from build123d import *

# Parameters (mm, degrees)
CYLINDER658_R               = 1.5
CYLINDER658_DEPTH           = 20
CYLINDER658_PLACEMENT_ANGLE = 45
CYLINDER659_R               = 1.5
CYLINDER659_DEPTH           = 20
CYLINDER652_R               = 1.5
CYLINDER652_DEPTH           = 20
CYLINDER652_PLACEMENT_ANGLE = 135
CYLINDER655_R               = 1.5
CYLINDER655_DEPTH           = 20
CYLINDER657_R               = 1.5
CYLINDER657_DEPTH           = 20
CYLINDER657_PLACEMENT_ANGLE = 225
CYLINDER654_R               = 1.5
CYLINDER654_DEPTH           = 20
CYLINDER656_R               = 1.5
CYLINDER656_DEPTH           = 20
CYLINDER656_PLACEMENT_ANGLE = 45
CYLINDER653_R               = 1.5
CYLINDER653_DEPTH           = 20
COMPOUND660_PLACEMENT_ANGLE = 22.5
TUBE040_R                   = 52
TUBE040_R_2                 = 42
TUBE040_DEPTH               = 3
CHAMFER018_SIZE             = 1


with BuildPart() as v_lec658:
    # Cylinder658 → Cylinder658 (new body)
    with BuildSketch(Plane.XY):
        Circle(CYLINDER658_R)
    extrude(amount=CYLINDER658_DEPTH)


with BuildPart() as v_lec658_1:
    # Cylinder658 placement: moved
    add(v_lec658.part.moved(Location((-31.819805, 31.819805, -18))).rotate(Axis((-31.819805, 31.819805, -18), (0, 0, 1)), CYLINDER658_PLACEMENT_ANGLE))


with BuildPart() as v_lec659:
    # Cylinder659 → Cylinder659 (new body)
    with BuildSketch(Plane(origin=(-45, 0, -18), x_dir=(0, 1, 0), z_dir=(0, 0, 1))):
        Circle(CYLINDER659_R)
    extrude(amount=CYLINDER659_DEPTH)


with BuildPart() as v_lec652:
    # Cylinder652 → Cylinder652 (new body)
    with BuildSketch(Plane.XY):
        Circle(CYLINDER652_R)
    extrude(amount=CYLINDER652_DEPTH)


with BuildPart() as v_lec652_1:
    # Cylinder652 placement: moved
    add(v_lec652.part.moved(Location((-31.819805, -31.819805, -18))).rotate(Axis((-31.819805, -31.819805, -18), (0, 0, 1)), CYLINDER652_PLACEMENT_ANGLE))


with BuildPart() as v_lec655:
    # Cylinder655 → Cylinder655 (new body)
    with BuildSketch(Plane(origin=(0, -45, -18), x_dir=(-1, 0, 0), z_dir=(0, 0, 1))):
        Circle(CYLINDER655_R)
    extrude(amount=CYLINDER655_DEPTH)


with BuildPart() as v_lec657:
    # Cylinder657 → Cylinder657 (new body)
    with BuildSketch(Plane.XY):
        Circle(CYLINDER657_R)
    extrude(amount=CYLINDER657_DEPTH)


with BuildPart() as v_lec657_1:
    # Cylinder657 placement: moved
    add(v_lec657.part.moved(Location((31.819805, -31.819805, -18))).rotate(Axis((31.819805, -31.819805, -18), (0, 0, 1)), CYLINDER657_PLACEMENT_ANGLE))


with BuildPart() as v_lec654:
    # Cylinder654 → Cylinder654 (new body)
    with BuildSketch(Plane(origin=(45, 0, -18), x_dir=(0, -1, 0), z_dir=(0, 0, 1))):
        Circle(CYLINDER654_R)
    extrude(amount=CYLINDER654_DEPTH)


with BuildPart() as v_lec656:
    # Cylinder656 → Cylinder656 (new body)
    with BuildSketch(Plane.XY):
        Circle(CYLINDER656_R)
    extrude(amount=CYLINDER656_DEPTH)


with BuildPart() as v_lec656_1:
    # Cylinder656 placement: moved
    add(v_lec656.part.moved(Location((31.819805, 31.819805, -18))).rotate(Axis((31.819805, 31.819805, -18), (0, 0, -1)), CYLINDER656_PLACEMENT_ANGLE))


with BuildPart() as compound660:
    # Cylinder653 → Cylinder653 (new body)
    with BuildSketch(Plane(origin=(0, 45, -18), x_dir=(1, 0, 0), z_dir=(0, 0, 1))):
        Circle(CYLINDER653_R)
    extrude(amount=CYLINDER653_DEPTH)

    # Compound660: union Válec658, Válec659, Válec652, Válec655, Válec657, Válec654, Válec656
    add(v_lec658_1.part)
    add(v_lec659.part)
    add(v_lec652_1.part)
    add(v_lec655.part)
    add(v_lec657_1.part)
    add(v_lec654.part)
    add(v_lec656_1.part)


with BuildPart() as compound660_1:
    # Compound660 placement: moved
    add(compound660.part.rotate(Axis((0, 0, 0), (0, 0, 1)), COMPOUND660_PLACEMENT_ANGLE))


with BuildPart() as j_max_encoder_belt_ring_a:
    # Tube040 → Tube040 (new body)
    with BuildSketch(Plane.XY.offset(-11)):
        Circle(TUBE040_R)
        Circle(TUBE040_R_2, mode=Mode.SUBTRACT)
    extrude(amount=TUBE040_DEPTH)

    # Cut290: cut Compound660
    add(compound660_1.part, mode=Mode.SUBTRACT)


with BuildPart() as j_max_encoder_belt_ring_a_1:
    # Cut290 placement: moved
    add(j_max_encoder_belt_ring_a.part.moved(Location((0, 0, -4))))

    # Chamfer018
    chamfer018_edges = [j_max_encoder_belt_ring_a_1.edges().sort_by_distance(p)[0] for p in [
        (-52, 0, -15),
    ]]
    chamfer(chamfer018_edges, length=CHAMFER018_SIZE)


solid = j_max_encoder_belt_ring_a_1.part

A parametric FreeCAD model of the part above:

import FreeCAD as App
import Part
import Sketcher
from FreeCAD import Vector
Q = App.Units.Quantity


def edges_at(feature, points):
    """Names of the edges that pass closest to the given points."""
    edges = feature.Shape.Edges
    near = lambda p: min(range(len(edges)), key=lambda i: edges[i].distToShape(Part.Vertex(*p))[0])
    return sorted({f"Edge{near(p) + 1}" for p in points})

doc = App.newDocument("Part")
body = doc.addObject("PartDesign::Body", "Body")

# Sketch on XY plane
sketch1 = body.newObject("Sketcher::SketchObject", "Sketch")
sketch1.AttachmentSupport = (doc.getObject("XY_Plane"), [""])
sketch1.MapMode = "FlatFace"
sketch1.addGeometry(Part.Circle(Vector(0, 0, 0), Vector(0, 0, 1), 1.5), False)
sketch1.addConstraint([
    Sketcher.Constraint("Coincident", 0, 3, -1, 1),
    Sketcher.Constraint("Diameter", 0, Q("3 mm")),
])
pad1 = body.newObject("PartDesign::Pad", "Pad")
pad1.Profile = sketch1
pad1.Length = 20
body2 = doc.addObject("PartDesign::Body", "Body001")
doc.recompute()

body.Placement = App.Placement(Vector(-31.819805, 31.819805, -18), App.Rotation(Vector(0, 0, 1), 45))
boolean = body2.newObject("PartDesign::Boolean", "Boolean")
boolean.Type = "Fuse"
boolean.addObjects([body])
body3 = doc.addObject("PartDesign::Body", "Body002")

# Sketch on XY plane
sketch2 = body3.newObject("Sketcher::SketchObject", "Sketch001")
sketch2.AttachmentSupport = (doc.getObject("XY_Plane002"), [""])
sketch2.MapMode = "FlatFace"
sketch2.AttachmentOffset = App.Placement(Vector(0, 0, -18), App.Rotation())
sketch2.addGeometry(Part.Circle(Vector(-45, 0, 0), Vector(0, 0, 1), 1.5), False)
sketch2.addConstraint([
    Sketcher.Constraint("PointOnObject", 0, 3, -1),
    Sketcher.Constraint("Diameter", 0, Q("3 mm")),
    Sketcher.Constraint("DistanceX", 0, 3, -1, 1, Q("45 mm")),
])
pad2 = body3.newObject("PartDesign::Pad", "Pad001")
pad2.Profile = sketch2
pad2.Length = 20
body4 = doc.addObject("PartDesign::Body", "Body003")

# Sketch on XY plane
sketch3 = body4.newObject("Sketcher::SketchObject", "Sketch002")
sketch3.AttachmentSupport = (doc.getObject("XY_Plane003"), [""])
sketch3.MapMode = "FlatFace"
sketch3.addGeometry(Part.Circle(Vector(0, 0, 0), Vector(0, 0, 1), 1.5), False)
sketch3.addConstraint([
    Sketcher.Constraint("Coincident", 0, 3, -1, 1),
    Sketcher.Constraint("Diameter", 0, Q("3 mm")),
])
pad3 = body4.newObject("PartDesign::Pad", "Pad002")
pad3.Profile = sketch3
pad3.Length = 20
body5 = doc.addObject("PartDesign::Body", "Body004")
doc.recompute()

body4.Placement = App.Placement(Vector(-31.819805, -31.819805, -18), App.Rotation(Vector(0, 0, 1), 135))
boolean2 = body5.newObject("PartDesign::Boolean", "Boolean001")
boolean2.Type = "Fuse"
boolean2.addObjects([body4])
body6 = doc.addObject("PartDesign::Body", "Body005")

# Sketch on XY plane
sketch4 = body6.newObject("Sketcher::SketchObject", "Sketch003")
sketch4.AttachmentSupport = (doc.getObject("XY_Plane005"), [""])
sketch4.MapMode = "FlatFace"
sketch4.AttachmentOffset = App.Placement(Vector(0, 0, -18), App.Rotation())
sketch4.addGeometry(Part.Circle(Vector(0, -45, 0), Vector(0, 0, 1), 1.5), False)
sketch4.addConstraint([
    Sketcher.Constraint("PointOnObject", 0, 3, -2),
    Sketcher.Constraint("Diameter", 0, Q("3 mm")),
    Sketcher.Constraint("DistanceY", 0, 3, -1, 1, Q("45 mm")),
])
pad4 = body6.newObject("PartDesign::Pad", "Pad003")
pad4.Profile = sketch4
pad4.Length = 20
body7 = doc.addObject("PartDesign::Body", "Body006")

# Sketch on XY plane
sketch5 = body7.newObject("Sketcher::SketchObject", "Sketch004")
sketch5.AttachmentSupport = (doc.getObject("XY_Plane006"), [""])
sketch5.MapMode = "FlatFace"
sketch5.addGeometry(Part.Circle(Vector(0, 0, 0), Vector(0, 0, 1), 1.5), False)
sketch5.addConstraint([
    Sketcher.Constraint("Coincident", 0, 3, -1, 1),
    Sketcher.Constraint("Diameter", 0, Q("3 mm")),
])
pad5 = body7.newObject("PartDesign::Pad", "Pad004")
pad5.Profile = sketch5
pad5.Length = 20
body8 = doc.addObject("PartDesign::Body", "Body007")
doc.recompute()

body7.Placement = App.Placement(Vector(31.819805, -31.819805, -18), App.Rotation(Vector(0, 0, 1), 225))
boolean3 = body8.newObject("PartDesign::Boolean", "Boolean002")
boolean3.Type = "Fuse"
boolean3.addObjects([body7])
body9 = doc.addObject("PartDesign::Body", "Body008")

# Sketch on XY plane
sketch6 = body9.newObject("Sketcher::SketchObject", "Sketch005")
sketch6.AttachmentSupport = (doc.getObject("XY_Plane008"), [""])
sketch6.MapMode = "FlatFace"
sketch6.AttachmentOffset = App.Placement(Vector(0, 0, -18), App.Rotation())
sketch6.addGeometry(Part.Circle(Vector(45, 0, 0), Vector(0, 0, 1), 1.5), False)
sketch6.addConstraint([
    Sketcher.Constraint("PointOnObject", 0, 3, -1),
    Sketcher.Constraint("Diameter", 0, Q("3 mm")),
    Sketcher.Constraint("DistanceX", -1, 1, 0, 3, Q("45 mm")),
])
pad6 = body9.newObject("PartDesign::Pad", "Pad005")
pad6.Profile = sketch6
pad6.Length = 20
body10 = doc.addObject("PartDesign::Body", "Body009")

# Sketch on XY plane
sketch7 = body10.newObject("Sketcher::SketchObject", "Sketch006")
sketch7.AttachmentSupport = (doc.getObject("XY_Plane009"), [""])
sketch7.MapMode = "FlatFace"
sketch7.addGeometry(Part.Circle(Vector(0, 0, 0), Vector(0, 0, 1), 1.5), False)
sketch7.addConstraint([
    Sketcher.Constraint("Coincident", 0, 3, -1, 1),
    Sketcher.Constraint("Diameter", 0, Q("3 mm")),
])
pad7 = body10.newObject("PartDesign::Pad", "Pad006")
pad7.Profile = sketch7
pad7.Length = 20
body11 = doc.addObject("PartDesign::Body", "Body010")
doc.recompute()

body10.Placement = App.Placement(Vector(31.819805, 31.819805, -18), App.Rotation(Vector(0, 0, -1), 45))
boolean4 = body11.newObject("PartDesign::Boolean", "Boolean003")
boolean4.Type = "Fuse"
boolean4.addObjects([body10])
body12 = doc.addObject("PartDesign::Body", "Body011")
body12.AllowCompound = True

# Sketch on XY plane
sketch8 = body12.newObject("Sketcher::SketchObject", "Sketch007")
sketch8.AttachmentSupport = (doc.getObject("XY_Plane011"), [""])
sketch8.MapMode = "FlatFace"
sketch8.AttachmentOffset = App.Placement(Vector(0, 0, -18), App.Rotation())
sketch8.addGeometry(Part.Circle(Vector(0, 45, 0), Vector(0, 0, 1), 1.5), False)
sketch8.addConstraint([
    Sketcher.Constraint("PointOnObject", 0, 3, -2),
    Sketcher.Constraint("Diameter", 0, Q("3 mm")),
    Sketcher.Constraint("DistanceY", -1, 1, 0, 3, Q("45 mm")),
])
pad8 = body12.newObject("PartDesign::Pad", "Pad007")
pad8.Profile = sketch8
pad8.Length = 20
doc.recompute()

boolean5 = body12.newObject("PartDesign::Boolean", "Boolean004")
boolean5.Type = "Fuse"
boolean5.addObjects([body2])
doc.recompute()

boolean6 = body12.newObject("PartDesign::Boolean", "Boolean005")
boolean6.Type = "Fuse"
boolean6.addObjects([body3])
doc.recompute()

boolean7 = body12.newObject("PartDesign::Boolean", "Boolean006")
boolean7.Type = "Fuse"
boolean7.addObjects([body5])
doc.recompute()

boolean8 = body12.newObject("PartDesign::Boolean", "Boolean007")
boolean8.Type = "Fuse"
boolean8.addObjects([body6])
doc.recompute()

boolean9 = body12.newObject("PartDesign::Boolean", "Boolean008")
boolean9.Type = "Fuse"
boolean9.addObjects([body8])
doc.recompute()

boolean10 = body12.newObject("PartDesign::Boolean", "Boolean009")
boolean10.Type = "Fuse"
boolean10.addObjects([body9])
doc.recompute()

boolean11 = body12.newObject("PartDesign::Boolean", "Boolean010")
boolean11.Type = "Fuse"
boolean11.addObjects([body11])
body13 = doc.addObject("PartDesign::Body", "Body012")
body13.AllowCompound = True
doc.recompute()

body12.Placement = App.Placement(Vector(0, 0, 0), App.Rotation(Vector(0, 0, 1), 22.5))
boolean12 = body13.newObject("PartDesign::Boolean", "Boolean011")
boolean12.Type = "Fuse"
boolean12.addObjects([body12])
body14 = doc.addObject("PartDesign::Body", "Body013")

# Sketch on XY plane
sketch9 = body14.newObject("Sketcher::SketchObject", "Sketch008")
sketch9.AttachmentSupport = (doc.getObject("XY_Plane013"), [""])
sketch9.MapMode = "FlatFace"
sketch9.AttachmentOffset = App.Placement(Vector(0, 0, -11), App.Rotation())
sketch9.addGeometry([
    Part.Circle(Vector(0, 0, 0), Vector(0, 0, 1), 52),
    Part.Circle(Vector(0, 0, 0), Vector(0, 0, 1), 42),
], False)
sketch9.addConstraint([
    Sketcher.Constraint("Coincident", 0, 3, -1, 1),
    Sketcher.Constraint("Coincident", 1, 3, -1, 1),
    Sketcher.Constraint("Diameter", 0, Q("104 mm")),
    Sketcher.Constraint("Diameter", 1, Q("84 mm")),
])
pad9 = body14.newObject("PartDesign::Pad", "Pad008")
pad9.Profile = sketch9
pad9.Length = 3
doc.recompute()

boolean13 = body14.newObject("PartDesign::Boolean", "Boolean012")
boolean13.Type = "Cut"
boolean13.addObjects([body13])
body15 = doc.addObject("PartDesign::Body", "Body014")
doc.recompute()

body14.Placement = App.Placement(Vector(0, 0, -4), App.Rotation(Vector(0, 0, 1), 0))
boolean14 = body15.newObject("PartDesign::Boolean", "Boolean013")
boolean14.Type = "Fuse"
boolean14.addObjects([body14])
doc.recompute()

chamfer = body15.newObject("PartDesign::Chamfer", "Chamfer")
chamfer.Base = (boolean14, edges_at(boolean14, [(-52, 0, -15)]))
chamfer.Size = 1

doc.recompute()
